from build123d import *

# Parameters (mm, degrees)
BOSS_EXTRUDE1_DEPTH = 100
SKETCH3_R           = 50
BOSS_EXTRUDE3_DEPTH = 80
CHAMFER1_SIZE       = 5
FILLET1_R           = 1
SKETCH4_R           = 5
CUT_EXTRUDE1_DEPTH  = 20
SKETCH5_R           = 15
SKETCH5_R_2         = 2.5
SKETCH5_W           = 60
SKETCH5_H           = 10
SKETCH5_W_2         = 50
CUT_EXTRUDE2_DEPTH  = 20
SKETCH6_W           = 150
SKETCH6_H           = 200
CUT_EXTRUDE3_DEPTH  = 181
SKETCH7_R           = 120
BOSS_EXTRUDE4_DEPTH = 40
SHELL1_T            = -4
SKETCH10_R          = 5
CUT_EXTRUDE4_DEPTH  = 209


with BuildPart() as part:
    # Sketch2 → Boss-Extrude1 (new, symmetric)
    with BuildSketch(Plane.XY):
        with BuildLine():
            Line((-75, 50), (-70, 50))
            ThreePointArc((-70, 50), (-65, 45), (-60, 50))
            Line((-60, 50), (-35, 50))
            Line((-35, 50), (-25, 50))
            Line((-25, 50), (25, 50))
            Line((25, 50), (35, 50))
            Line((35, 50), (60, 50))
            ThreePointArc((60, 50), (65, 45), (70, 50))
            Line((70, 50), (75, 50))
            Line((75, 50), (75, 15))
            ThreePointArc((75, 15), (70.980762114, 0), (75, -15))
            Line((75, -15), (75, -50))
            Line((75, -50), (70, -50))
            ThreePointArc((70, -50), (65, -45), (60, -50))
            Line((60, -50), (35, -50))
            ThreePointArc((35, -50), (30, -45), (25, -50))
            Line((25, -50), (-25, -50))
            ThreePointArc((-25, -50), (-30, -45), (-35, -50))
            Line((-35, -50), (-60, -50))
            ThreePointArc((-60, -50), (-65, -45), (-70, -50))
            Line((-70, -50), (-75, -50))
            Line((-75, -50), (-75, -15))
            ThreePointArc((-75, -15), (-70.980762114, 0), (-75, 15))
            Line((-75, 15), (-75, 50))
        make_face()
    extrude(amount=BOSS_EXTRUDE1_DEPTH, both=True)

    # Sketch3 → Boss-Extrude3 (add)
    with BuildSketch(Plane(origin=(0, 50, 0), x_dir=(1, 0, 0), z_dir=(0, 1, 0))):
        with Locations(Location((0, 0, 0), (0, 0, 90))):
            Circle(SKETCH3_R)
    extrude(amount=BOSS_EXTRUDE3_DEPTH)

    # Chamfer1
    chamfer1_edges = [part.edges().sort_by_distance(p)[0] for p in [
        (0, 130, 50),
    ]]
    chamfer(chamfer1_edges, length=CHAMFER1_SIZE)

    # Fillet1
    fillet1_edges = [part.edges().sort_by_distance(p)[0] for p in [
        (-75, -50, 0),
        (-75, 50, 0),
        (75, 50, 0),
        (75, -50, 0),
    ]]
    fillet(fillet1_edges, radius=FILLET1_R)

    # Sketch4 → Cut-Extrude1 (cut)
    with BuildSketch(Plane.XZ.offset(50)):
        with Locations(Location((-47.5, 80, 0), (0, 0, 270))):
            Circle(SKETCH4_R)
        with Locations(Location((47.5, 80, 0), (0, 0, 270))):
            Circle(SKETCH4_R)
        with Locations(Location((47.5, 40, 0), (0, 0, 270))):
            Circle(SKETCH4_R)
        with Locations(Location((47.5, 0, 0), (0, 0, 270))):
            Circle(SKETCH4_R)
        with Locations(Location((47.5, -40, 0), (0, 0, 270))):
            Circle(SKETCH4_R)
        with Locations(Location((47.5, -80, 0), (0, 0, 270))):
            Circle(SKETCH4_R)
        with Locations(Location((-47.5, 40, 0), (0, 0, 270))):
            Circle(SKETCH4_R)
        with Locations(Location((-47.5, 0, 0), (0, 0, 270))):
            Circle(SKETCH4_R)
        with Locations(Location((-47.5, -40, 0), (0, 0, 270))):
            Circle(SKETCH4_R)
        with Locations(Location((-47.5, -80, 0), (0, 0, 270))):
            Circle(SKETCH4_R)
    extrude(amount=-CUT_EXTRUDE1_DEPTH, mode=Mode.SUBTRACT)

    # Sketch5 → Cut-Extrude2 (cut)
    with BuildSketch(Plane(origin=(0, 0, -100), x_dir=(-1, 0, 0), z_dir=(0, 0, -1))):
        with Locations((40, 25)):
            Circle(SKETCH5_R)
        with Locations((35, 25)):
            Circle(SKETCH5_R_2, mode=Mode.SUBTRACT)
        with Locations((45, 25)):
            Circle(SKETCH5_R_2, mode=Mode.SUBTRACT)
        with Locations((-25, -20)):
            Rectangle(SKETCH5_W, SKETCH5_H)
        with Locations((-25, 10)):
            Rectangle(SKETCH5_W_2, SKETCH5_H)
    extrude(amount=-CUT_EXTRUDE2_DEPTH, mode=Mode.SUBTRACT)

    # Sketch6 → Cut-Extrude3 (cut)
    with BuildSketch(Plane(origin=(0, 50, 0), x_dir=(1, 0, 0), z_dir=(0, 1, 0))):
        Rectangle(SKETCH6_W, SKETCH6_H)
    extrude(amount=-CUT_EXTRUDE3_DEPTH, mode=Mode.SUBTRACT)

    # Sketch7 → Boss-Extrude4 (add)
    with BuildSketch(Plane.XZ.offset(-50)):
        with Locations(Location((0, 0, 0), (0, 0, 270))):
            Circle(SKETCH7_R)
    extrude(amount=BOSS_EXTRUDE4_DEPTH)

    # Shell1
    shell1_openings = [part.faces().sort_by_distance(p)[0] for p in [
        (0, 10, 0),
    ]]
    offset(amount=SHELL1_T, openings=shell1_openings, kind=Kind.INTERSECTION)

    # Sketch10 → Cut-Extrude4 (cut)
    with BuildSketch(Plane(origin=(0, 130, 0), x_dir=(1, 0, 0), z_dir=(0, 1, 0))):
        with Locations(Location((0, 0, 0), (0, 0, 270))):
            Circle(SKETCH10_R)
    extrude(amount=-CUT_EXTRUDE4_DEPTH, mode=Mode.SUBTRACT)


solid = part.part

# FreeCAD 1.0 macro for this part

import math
import FreeCAD as App
import Part
import Sketcher
Q = App.Units.Quantity


def edges_at(feature, points):
    """Names of the edges that pass closest to the given points."""
    edges = feature.Shape.Edges
    near = lambda p: min(range(len(edges)), key=lambda i: edges[i].distToShape(Part.Vertex(*p))[0])
    return sorted({f"Edge{near(p) + 1}" for p in points})


def faces_at(feature, points):
    """Names of the faces that lie closest to the given points."""
    faces = feature.Shape.Faces
    near = lambda p: min(range(len(faces)), key=lambda i: faces[i].distToShape(Part.Vertex(*p))[0])
    return sorted({f"Face{near(p) + 1}" for p in points})


def add_polygon(sketch, points):
    """Adds a closed chain of lines whose ends are joined by coincident constraints."""
    first, n = sketch.GeometryCount, len(points)
    for a, b in zip(points, points[1:] + points[:1]):
        sketch.addGeometry(Part.LineSegment(App.Vector(*a, 0), App.Vector(*b, 0)), False)
    for i in range(n):
        sketch.addConstraint(Sketcher.Constraint("Coincident", first + i, 2, first + (i + 1) % n, 1))

doc = App.newDocument("Part")
params = doc.addObject("Spreadsheet::Sheet", "Params")
for row, (alias, value) in enumerate([
    ("sketch1_radius", "30 mm"),
    ("sketch1_radius2", "5 mm"),
    ("sketch1_width", "5 mm"),
    ("sketch1_width2", "25 mm"),
    ("sketch1_width3", "50 mm"),
    ("pad1_length", "200 mm"),
    ("sketch2_diameter", "100 mm"),
    ("pad2_length", "80 mm"),
    ("chamfer_size", "5 mm"),
    ("fillet_radius", "1 mm"),
    ("sketch3_diameter", "10 mm"),
    ("pocket1_length", "20 mm"),
    ("sketch4_diameter", "30 mm"),
    ("sketch4_diameter2", "5 mm"),
    ("sketch4_width", "60 mm"),
    ("sketch4_width2", "50 mm"),
    ("sketch4_height", "10 mm"),
    ("pocket2_length", "20 mm"),
    ("sketch5_width", "150 mm"),
    ("sketch5_height", "200 mm"),
    ("pocket3_length", "181 mm"),
    ("sketch6_diameter", "240 mm"),
    ("pad3_length", "40 mm"),
    ("thickness_wall", "4 mm"),
    ("sketch7_diameter", "10 mm"),
    ("pocket4_length", "209 mm"),
], start=1):
    params.set(f"A{row}", alias)
    params.set(f"B{row}", "=" + value)
    params.setAlias(f"B{row}", alias)

body = doc.addObject("PartDesign::Body", "Body")

# Sketch on XY plane
sketch1 = body.newObject("Sketcher::SketchObject", "Sketch")
sketch1.AttachmentSupport = (doc.getObject("XY_Plane"), [""])
sketch1.MapMode = "FlatFace"
sketch1.addGeometry(Part.LineSegment(App.Vector(-70, 50, 0), App.Vector(-75, 50, 0)), False)
sketch1.addGeometry(Part.LineSegment(App.Vector(-75, 50, 0), App.Vector(-75, 15, 0)), False)
sketch1.addGeometry(Part.ArcOfCircle(Part.Circle(App.Vector(-101, 0, 0), App.Vector(0, 0, 1), 30), math.radians(-30), math.radians(30)), False)
sketch1.addGeometry(Part.LineSegment(App.Vector(-75, -15, 0), App.Vector(-75, -50, 0)), False)
sketch1.addGeometry(Part.LineSegment(App.Vector(-75, -50, 0), App.Vector(-70, -50, 0)), False)
sketch1.addGeometry(Part.ArcOfCircle(Part.Circle(App.Vector(-65, -50, 0), App.Vector(0, 0, 1), 5), math.radians(0), math.radians(180)), False)
sketch1.addGeometry(Part.LineSegment(App.Vector(-60, -50, 0), App.Vector(-35, -50, 0)), False)
sketch1.addGeometry(Part.ArcOfCircle(Part.Circle(App.Vector(-30, -50, 0), App.Vector(0, 0, 1), 5), math.radians(0), math.radians(180)), False)
sketch1.addGeometry(Part.LineSegment(App.Vector(-25, -50, 0), App.Vector(25, -50, 0)), False)
sketch1.addGeometry(Part.ArcOfCircle(Part.Circle(App.Vector(30, -50, 0), App.Vector(0, 0, 1), 5), math.radians(0), math.radians(180)), False)
sketch1.addGeometry(Part.LineSegment(App.Vector(35, -50, 0), App.Vector(60, -50, 0)), False)
sketch1.addGeometry(Part.ArcOfCircle(Part.Circle(App.Vector(65, -50, 0), App.Vector(0, 0, 1), 5), math.radians(0), math.radians(180)), False)
sketch1.addGeometry(Part.LineSegment(App.Vector(70, -50, 0), App.Vector(75, -50, 0)), False)
sketch1.addGeometry(Part.LineSegment(App.Vector(75, -50, 0), App.Vector(75, -15, 0)), False)
sketch1.addGeometry(Part.ArcOfCircle(Part.Circle(App.Vector(101, 0, 0), App.Vector(0, 0, 1), 30), math.radians(150), math.radians(210)), False)
sketch1.addGeometry(Part.LineSegment(App.Vector(75, 15, 0), App.Vector(75, 50, 0)), False)
sketch1.addGeometry(Part.LineSegment(App.Vector(75, 50, 0), App.Vector(70, 50, 0)), False)
sketch1.addGeometry(Part.ArcOfCircle(Part.Circle(App.Vector(65, 50, 0), App.Vector(0, 0, 1), 5), math.radians(180), math.radians(360)), False)
sketch1.addGeometry(Part.LineSegment(App.Vector(60, 50, 0), App.Vector(-60, 50, 0)), False)
sketch1.addGeometry(Part.ArcOfCircle(Part.Circle(App.Vector(-65, 50, 0), App.Vector(0, 0, 1), 5), math.radians(180), math.radians(360)), False)
sketch1.addConstraint(Sketcher.Constraint("Coincident", 0, 2, 1, 1))
sketch1.addConstraint(Sketcher.Constraint("Coincident", 1, 2, 2, 2))
sketch1.addConstraint(Sketcher.Constraint("Coincident", 2, 1, 3, 1))
sketch1.addConstraint(Sketcher.Constraint("Coincident", 3, 2, 4, 1))
sketch1.addConstraint(Sketcher.Constraint("Coincident", 4, 2, 5, 2))
sketch1.addConstraint(Sketcher.Constraint("Coincident", 5, 1, 6, 1))
sketch1.addConstraint(Sketcher.Constraint("Coincident", 6, 2, 7, 2))
sketch1.addConstraint(Sketcher.Constraint("Coincident", 7, 1, 8, 1))
sketch1.addConstraint(Sketcher.Constraint("Coincident", 8, 2, 9, 2))
sketch1.addConstraint(Sketcher.Constraint("Coincident", 9, 1, 10, 1))
sketch1.addConstraint(Sketcher.Constraint("Coincident", 10, 2, 11, 2))
sketch1.addConstraint(Sketcher.Constraint("Coincident", 11, 1, 12, 1))
sketch1.addConstraint(Sketcher.Constraint("Coincident", 12, 2, 13, 1))
sketch1.addConstraint(Sketcher.Constraint("Coincident", 13, 2, 14, 2))
sketch1.addConstraint(Sketcher.Constraint("Coincident", 14, 1, 15, 1))
sketch1.addConstraint(Sketcher.Constraint("Coincident", 15, 2, 16, 1))
sketch1.addConstraint(Sketcher.Constraint("Coincident", 16, 2, 17, 2))
sketch1.addConstraint(Sketcher.Constraint("Coincident", 17, 1, 18, 1))
sketch1.addConstraint(Sketcher.Constraint("Coincident", 18, 2, 19, 2))
sketch1.addConstraint(Sketcher.Constraint("Coincident", 19, 1, 0, 1))
sketch1.addConstraint(Sketcher.Constraint("Horizontal", 0))
sketch1.addConstraint(Sketcher.Constraint("Vertical", 1))
sketch1.addConstraint(Sketcher.Constraint("Vertical", 3))
sketch1.addConstraint(Sketcher.Constraint("Horizontal", 4))
sketch1.addConstraint(Sketcher.Constraint("Horizontal", 6))
sketch1.addConstraint(Sketcher.Constraint("Horizontal", 8))
sketch1.addConstraint(Sketcher.Constraint("Horizontal", 10))
sketch1.addConstraint(Sketcher.Constraint("Horizontal", 12))
sketch1.addConstraint(Sketcher.Constraint("Vertical", 13))
sketch1.addConstraint(Sketcher.Constraint("Vertical", 15))
sketch1.addConstraint(Sketcher.Constraint("Horizontal", 16))
sketch1.addConstraint(Sketcher.Constraint("Horizontal", 18))
sketch1.addConstraint(Sketcher.Constraint("Equal", 5, 7))
sketch1.addConstraint(Sketcher.Constraint("Equal", 7, 9))
sketch1.addConstraint(Sketcher.Constraint("Equal", 9, 11))
sketch1.addConstraint(Sketcher.Constraint("Equal", 2, 14))
sketch1.addConstraint(Sketcher.Constraint("Equal", 11, 17))
sketch1.addConstraint(Sketcher.Constraint("Equal", 17, 19))
sketch1.addConstraint(Sketcher.Constraint("Symmetric", 2, 3, 14, 3, -1, 1))
sketch1.addConstraint(Sketcher.Constraint("Symmetric", 5, 3, 17, 3, -1, 1))
sketch1.addConstraint(Sketcher.Constraint("Symmetric", 11, 3, 19, 3, -1, 1))
sketch1.addConstraint(Sketcher.Constraint("Symmetric", 0, 2, 12, 2, -1, 1))
sketch1.addConstraint(Sketcher.Constraint("Symmetric", 3, 2, 15, 2, -1, 1))
sketch1.addConstraint(Sketcher.Constraint("Symmetric", 7, 3, 9, 3, -2))
sketch1.addConstraint(Sketcher.Constraint("Symmetric", 5, 3, 11, 3, -2))
sketch1.addConstraint(Sketcher.Constraint("Symmetric", 3, 2, 12, 2, -2))
sketch1.addConstraint(Sketcher.Constraint("PointOnObject", 2, 3, -1))
sketch1.addConstraint(Sketcher.Constraint("Horizontal", 5, 3, 7, 3))
sketch1.addConstraint(Sketcher.Constraint("Horizontal", 19, 3, 0, 2))
sketch1.addConstraint(Sketcher.Constraint("Horizontal", 4, 2, 5, 1))
sketch1.addConstraint(Sketcher.Constraint("Horizontal", 6, 2, 7, 1))
sketch1.addConstraint(Sketcher.Constraint("Horizontal", 8, 2, 9, 1))
sketch1.addConstraint(Sketcher.Constraint("Horizontal", 16, 2, 17, 1))
sketch1.addConstraint(Sketcher.Constraint("Radius", 2, Q("30 mm")))
sketch1.addConstraint(Sketcher.Constraint("Radius", 5, Q("5 mm")))
sketch1.addConstraint(Sketcher.Constraint("DistanceX", 0, 2, 0, 1, Q("5 mm")))
sketch1.addConstraint(Sketcher.Constraint("DistanceX", 6, 1, 6, 2, Q("25 mm")))
sketch1.addConstraint(Sketcher.Constraint("DistanceX", 8, 1, 8, 2, Q("50 mm")))
sketch1.addConstraint(Sketcher.Constraint("DistanceY", 1, 2, 1, 1, Q("35 mm")))
sketch1.addConstraint(Sketcher.Constraint("DistanceY", 5, 3, -1, 1, Q("50 mm")))
sketch1.setExpression("Constraints[53]", "Params.sketch1_radius")
sketch1.setExpression("Constraints[54]", "Params.sketch1_radius2")
sketch1.setExpression("Constraints[55]", "Params.sketch1_width")
sketch1.setExpression("Constraints[56]", "Params.sketch1_width2")
sketch1.setExpression("Constraints[57]", "Params.sketch1_width3")
pad1 = body.newObject("PartDesign::Pad", "Pad")
pad1.Profile = sketch1
pad1.setExpression("Length", "Params.pad1_length")
pad1.Midplane = True

# Sketch on XZ plane
sketch2 = body.newObject("Sketcher::SketchObject", "Sketch001")
sketch2.AttachmentSupport = (doc.getObject("XZ_Plane"), [""])
sketch2.MapMode = "FlatFace"
sketch2.AttachmentOffset = App.Placement(App.Vector(0, 0, -50), App.Rotation())
sketch2.addGeometry(Part.Circle(App.Vector(0, 0, 0), App.Vector(0, 0, 1), 50), False)
sketch2.addConstraint(Sketcher.Constraint("Coincident", 0, 3, -1, 1))
sketch2.addConstraint(Sketcher.Constraint("Diameter", 0, Q("100 mm")))
sketch2.setExpression("Constraints[1]", "Params.sketch2_diameter")
pad2 = body.newObject("PartDesign::Pad", "Pad001")
pad2.Profile = sketch2
pad2.setExpression("Length", "Params.pad2_length")
pad2.Reversed = True
doc.recompute()

chamfer = body.newObject("PartDesign::Chamfer", "Chamfer")
chamfer.Base = (pad2, edges_at(pad2, [(0, 130, 50)]))
chamfer.setExpression("Size", "Params.chamfer_size")
doc.recompute()

fillet = body.newObject("PartDesign::Fillet", "Fillet")
fillet.Base = (chamfer, edges_at(chamfer, [
    (-75, -50, 0),
    (-75, 50, 0),
    (75, 50, 0),
    (75, -50, 0),
]))
fillet.setExpression("Radius", "Params.fillet_radius")

# Sketch on XZ plane
sketch3 = body.newObject("Sketcher::SketchObject", "Sketch002")
sketch3.AttachmentSupport = (doc.getObject("XZ_Plane"), [""])
sketch3.MapMode = "FlatFace"
sketch3.AttachmentOffset = App.Placement(App.Vector(0, 0, 50), App.Rotation())
sketch3.addGeometry(Part.Circle(App.Vector(-48, 80, 0), App.Vector(0, 0, 1), 5), False)
sketch3.addGeometry(Part.Circle(App.Vector(48, 80, 0), App.Vector(0, 0, 1), 5), False)
sketch3.addGeometry(Part.Circle(App.Vector(48, 40, 0), App.Vector(0, 0, 1), 5), False)
sketch3.addGeometry(Part.Circle(App.Vector(48, 0, 0), App.Vector(0, 0, 1), 5), False)
sketch3.addGeometry(Part.Circle(App.Vector(48, -40, 0), App.Vector(0, 0, 1), 5), False)
sketch3.addGeometry(Part.Circle(App.Vector(48, -80, 0), App.Vector(0, 0, 1), 5), False)
sketch3.addGeometry(Part.Circle(App.Vector(-48, 40, 0), App.Vector(0, 0, 1), 5), False)
sketch3.addGeometry(Part.Circle(App.Vector(-48, 0, 0), App.Vector(0, 0, 1), 5), False)
sketch3.addGeometry(Part.Circle(App.Vector(-48, -40, 0), App.Vector(0, 0, 1), 5), False)
sketch3.addGeometry(Part.Circle(App.Vector(-48, -80, 0), App.Vector(0, 0, 1), 5), False)
sketch3.addConstraint(Sketcher.Constraint("Equal", 0, 1))
sketch3.addConstraint(Sketcher.Constraint("Equal", 1, 2))
sketch3.addConstraint(Sketcher.Constraint("Equal", 2, 3))
sketch3.addConstraint(Sketcher.Constraint("Equal", 3, 4))
sketch3.addConstraint(Sketcher.Constraint("Equal", 4, 5))
sketch3.addConstraint(Sketcher.Constraint("Equal", 5, 6))
sketch3.addConstraint(Sketcher.Constraint("Equal", 6, 7))
sketch3.addConstraint(Sketcher.Constraint("Equal", 7, 8))
sketch3.addConstraint(Sketcher.Constraint("Equal", 8, 9))
sketch3.addConstraint(Sketcher.Constraint("Symmetric", 0, 3, 5, 3, -1, 1))
sketch3.addConstraint(Sketcher.Constraint("Symmetric", 4, 3, 6, 3, -1, 1))
sketch3.addConstraint(Sketcher.Constraint("Symmetric", 3, 3, 7, 3, -1, 1))
sketch3.addConstraint(Sketcher.Constraint("Symmetric", 2, 3, 8, 3, -1, 1))
sketch3.addConstraint(Sketcher.Constraint("Symmetric", 1, 3, 9, 3, -1, 1))
sketch3.addConstraint(Sketcher.Constraint("Symmetric", 0, 3, 1, 3, -2))
sketch3.addConstraint(Sketcher.Constraint("Symmetric", 2, 3, 6, 3, -2))
sketch3.addConstraint(Sketcher.Constraint("PointOnObject", 3, 3, -1))
sketch3.addConstraint(Sketcher.Constraint("Vertical", 1, 3, 2, 3))
sketch3.addConstraint(Sketcher.Constraint("Vertical", 2, 3, 3, 3))
sketch3.addConstraint(Sketcher.Constraint("Diameter", 0, Q("10 mm")))
sketch3.addConstraint(Sketcher.Constraint("DistanceY", -1, 1, 0, 3, Q("80 mm")))
sketch3.addConstraint(Sketcher.Constraint("DistanceY", -1, 1, 2, 3, Q("40 mm")))
sketch3.addConstraint(Sketcher.Constraint("DistanceX", 0, 3, 1, 3, Q("95 mm")))
sketch3.setExpression("Constraints[19]", "Params.sketch3_diameter")
pocket1 = body.newObject("PartDesign::Pocket", "Pocket")
pocket1.Profile = sketch3
pocket1.setExpression("Length", "Params.pocket1_length")

# Sketch on XY plane
sketch4 = body.newObject("Sketcher::SketchObject", "Sketch003")
sketch4.AttachmentSupport = (doc.getObject("XY_Plane"), [""])
sketch4.MapMode = "FlatFace"
sketch4.AttachmentOffset = App.Placement(App.Vector(0, 0, -100), App.Rotation())
sketch4.addGeometry(Part.Circle(App.Vector(-40, 25, 0), App.Vector(0, 0, 1), 15), False)  # 0
sketch4.addGeometry(Part.Circle(App.Vector(-35, 25, 0), App.Vector(0, 0, 1), 2.5), False)  # 1
sketch4.addGeometry(Part.Circle(App.Vector(-45, 25, 0), App.Vector(0, 0, 1), 2.5), False)  # 2
add_polygon(sketch4, [(55, -15), (55, -25), (-5, -25), (-5, -15)])  # lines 3-6
add_polygon(sketch4, [(50, 15), (50, 5), (0, 5), (0, 15)])  # lines 7-10
sketch4.addConstraint(Sketcher.Constraint("Vertical", 3))
sketch4.addConstraint(Sketcher.Constraint("Horizontal", 4))
sketch4.addConstraint(Sketcher.Constraint("Vertical", 5))
sketch4.addConstraint(Sketcher.Constraint("Horizontal", 6))
sketch4.addConstraint(Sketcher.Constraint("Vertical", 7))
sketch4.addConstraint(Sketcher.Constraint("Horizontal", 8))
sketch4.addConstraint(Sketcher.Constraint("Vertical", 9))
sketch4.addConstraint(Sketcher.Constraint("Horizontal", 10))
sketch4.addConstraint(Sketcher.Constraint("Equal", 1, 2))
sketch4.addConstraint(Sketcher.Constraint("PointOnObject", 8, 2, -2))
sketch4.addConstraint(Sketcher.Constraint("Horizontal", 0, 3, 1, 3))
sketch4.addConstraint(Sketcher.Constraint("Horizontal", 1, 3, 2, 3))
sketch4.addConstraint(Sketcher.Constraint("Equal", 5, 7))
sketch4.addConstraint(Sketcher.Constraint("Diameter", 0, Q("30 mm")))
sketch4.addConstraint(Sketcher.Constraint("Diameter", 1, Q("5 mm")))
sketch4.addConstraint(Sketcher.Constraint("DistanceX", 4, 2, 4, 1, Q("60 mm")))
sketch4.addConstraint(Sketcher.Constraint("DistanceX", 8, 2, 8, 1, Q("50 mm")))
sketch4.addConstraint(Sketcher.Constraint("DistanceY", 3, 2, 3, 1, Q("10 mm")))
sketch4.addConstraint(Sketcher.Constraint("DistanceX", 0, 3, -1, 1, Q("40 mm")))
sketch4.addConstraint(Sketcher.Constraint("DistanceY", -1, 1, 0, 3, Q("25 mm")))
sketch4.addConstraint(Sketcher.Constraint("DistanceX", 1, 3, -1, 1, Q("35 mm")))
sketch4.addConstraint(Sketcher.Constraint("DistanceX", 2, 3, -1, 1, Q("45 mm")))
sketch4.addConstraint(Sketcher.Constraint("DistanceX", -1, 1, 3, 2, Q("55 mm")))
sketch4.addConstraint(Sketcher.Constraint("DistanceY", 3, 2, -1, 1, Q("25 mm")))
sketch4.addConstraint(Sketcher.Constraint("DistanceY", -1, 1, 7, 2, Q("5 mm")))
sketch4.setExpression("Constraints[21]", "Params.sketch4_diameter")
sketch4.setExpression("Constraints[22]", "Params.sketch4_diameter2")
sketch4.setExpression("Constraints[23]", "Params.sketch4_width")
sketch4.setExpression("Constraints[24]", "Params.sketch4_width2")
sketch4.setExpression("Constraints[25]", "Params.sketch4_height")
pocket2 = body.newObject("PartDesign::Pocket", "Pocket001")
pocket2.Profile = sketch4
pocket2.setExpression("Length", "Params.pocket2_length")
pocket2.Reversed = True

# Sketch on XZ plane
sketch5 = body.newObject("Sketcher::SketchObject", "Sketch004")
sketch5.AttachmentSupport = (doc.getObject("XZ_Plane"), [""])
sketch5.MapMode = "FlatFace"
sketch5.AttachmentOffset = App.Placement(App.Vector(0, 0, -50), App.Rotation())
add_polygon(sketch5, [(-75, -100), (-75, 100), (75, 100), (75, -100)])  # lines 0-3
sketch5.addConstraint(Sketcher.Constraint("Vertical", 0))
sketch5.addConstraint(Sketcher.Constraint("Horizontal", 1))
sketch5.addConstraint(Sketcher.Constraint("Vertical", 2))
sketch5.addConstraint(Sketcher.Constraint("Horizontal", 3))
sketch5.addConstraint(Sketcher.Constraint("Symmetric", 0, 2, 2, 2, -1, 1))
sketch5.addConstraint(Sketcher.Constraint("DistanceX", 1, 1, 1, 2, Q("150 mm")))
sketch5.addConstraint(Sketcher.Constraint("DistanceY", 0, 1, 0, 2, Q("200 mm")))
sketch5.setExpression("Constraints[9]", "Params.sketch5_width")
sketch5.setExpression("Constraints[10]", "Params.sketch5_height")
pocket3 = body.newObject("PartDesign::Pocket", "Pocket002")
pocket3.Profile = sketch5
pocket3.setExpression("Length", "Params.pocket3_length")
pocket3.Reversed = True

# Sketch on XZ plane
sketch6 = body.newObject("Sketcher::SketchObject", "Sketch005")
sketch6.AttachmentSupport = (doc.getObject("XZ_Plane"), [""])
sketch6.MapMode = "FlatFace"
sketch6.AttachmentOffset = App.Placement(App.Vector(0, 0, -50), App.Rotation())
sketch6.addGeometry(Part.Circle(App.Vector(0, 0, 0), App.Vector(0, 0, 1), 120), False)
sketch6.addConstraint(Sketcher.Constraint("Coincident", 0, 3, -1, 1))
sketch6.addConstraint(Sketcher.Constraint("Diameter", 0, Q("240 mm")))
sketch6.setExpression("Constraints[1]", "Params.sketch6_diameter")
pad3 = body.newObject("PartDesign::Pad", "Pad002")
pad3.Profile = sketch6
pad3.setExpression("Length", "Params.pad3_length")
doc.recompute()

thickness = body.newObject("PartDesign::Thickness", "Thickness")
thickness.Base = (pad3, faces_at(pad3, [(0, 10, 0)]))
thickness.setExpression("Value", "Params.thickness_wall")
thickness.Reversed = True
thickness.Join = "Intersection"

# Sketch on XZ plane
sketch7 = body.newObject("Sketcher::SketchObject", "Sketch006")
sketch7.AttachmentSupport = (doc.getObject("XZ_Plane"), [""])
sketch7.MapMode = "FlatFace"
sketch7.AttachmentOffset = App.Placement(App.Vector(0, 0, -130), App.Rotation())
sketch7.addGeometry(Part.Circle(App.Vector(0, 0, 0), App.Vector(0, 0, 1), 5), False)
sketch7.addConstraint(Sketcher.Constraint("Coincident", 0, 3, -1, 1))
sketch7.addConstraint(Sketcher.Constraint("Diameter", 0, Q("10 mm")))
sketch7.setExpression("Constraints[1]", "Params.sketch7_diameter")
pocket4 = body.newObject("PartDesign::Pocket", "Pocket003")
pocket4.Profile = sketch7
pocket4.setExpression("Length", "Params.pocket4_length")
pocket4.Reversed = True

doc.recompute()
